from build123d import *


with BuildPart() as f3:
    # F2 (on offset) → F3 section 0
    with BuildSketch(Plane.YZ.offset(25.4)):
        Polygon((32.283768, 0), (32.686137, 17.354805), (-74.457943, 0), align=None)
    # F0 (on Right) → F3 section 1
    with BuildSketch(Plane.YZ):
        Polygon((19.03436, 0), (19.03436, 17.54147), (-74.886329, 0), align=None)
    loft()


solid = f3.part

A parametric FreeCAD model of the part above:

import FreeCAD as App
import Part
import Sketcher

V = App.Vector
Q = App.Units.Quantity

doc = App.newDocument("Part")
body = doc.addObject("PartDesign::Body", "Body")

# Sketch on YZ plane
sketch1 = body.newObject("Sketcher::SketchObject", "Sketch")
sketch1.AttachmentSupport = (doc.getObject("YZ_Plane"), [""])
sketch1.MapMode = "FlatFace"
sketch1.AttachmentOffset = App.Placement(V(0, 0, 25.4), App.Rotation())
sketch1.addGeometry(Part.LineSegment(V(32, 0, 0), V(33, 17, 0)), False)
sketch1.addGeometry(Part.LineSegment(V(33, 17, 0), V(-74, 0, 0)), False)
sketch1.addGeometry(Part.LineSegment(V(-74, 0, 0), V(32, 0, 0)), False)
sketch1.addConstraint(Sketcher.Constraint("Coincident", 0, 2, 1, 1))
sketch1.addConstraint(Sketcher.Constraint("Coincident", 1, 2, 2, 1))
sketch1.addConstraint(Sketcher.Constraint("Coincident", 2, 2, 0, 1))
sketch1.addConstraint(Sketcher.Constraint("Horizontal", 2))
sketch1.addConstraint(Sketcher.Constraint("PointOnObject", 1, 2, -1))
sketch1.addConstraint(Sketcher.Constraint("DistanceX", 2, 1, 2, 2, Q("106.741711 mm")))
sketch1.addConstraint(Sketcher.Constraint("Distance", 0, Q("17.359469 mm")))
sketch1.addConstraint(Sketcher.Constraint("DistanceX", -1, 1, 2, 2, Q("32.283768 mm")))
sketch1.addConstraint(Sketcher.Constraint("DistanceX", 1, 2, 0, 2, Q("107.14408 mm")))

# Sketch on YZ plane
sketch2 = body.newObject("Sketcher::SketchObject", "Sketch001")
sketch2.AttachmentSupport = (doc.getObject("YZ_Plane"), [""])
sketch2.MapMode = "FlatFace"
sketch2.addGeometry(Part.LineSegment(V(19, 0, 0), V(19, 18, 0)), False)
sketch2.addGeometry(Part.LineSegment(V(19, 18, 0), V(-75, 0, 0)), False)
sketch2.addGeometry(Part.LineSegment(V(-75, 0, 0), V(19, 0, 0)), False)
sketch2.addConstraint(Sketcher.Constraint("Coincident", 0, 2, 1, 1))
sketch2.addConstraint(Sketcher.Constraint("Coincident", 1, 2, 2, 1))
sketch2.addConstraint(Sketcher.Constraint("Coincident", 2, 2, 0, 1))
sketch2.addConstraint(Sketcher.Constraint("Vertical", 0))
sketch2.addConstraint(Sketcher.Constraint("Horizontal", 2))
sketch2.addConstraint(Sketcher.Constraint("PointOnObject", 1, 2, -1))
sketch2.addConstraint(Sketcher.Constraint("DistanceX", 2, 1, 2, 2, Q("93.920689 mm")))
sketch2.addConstraint(Sketcher.Constraint("DistanceY", 0, 1, 0, 2, Q("17.54147 mm")))
sketch2.addConstraint(Sketcher.Constraint("DistanceX", -1, 1, 0, 2, Q("19.03436 mm")))

additiveloft = body.newObject("PartDesign::AdditiveLoft", "AdditiveLoft")
additiveloft.Profile = sketch1
additiveloft.Sections = [sketch2]

doc.recompute()
